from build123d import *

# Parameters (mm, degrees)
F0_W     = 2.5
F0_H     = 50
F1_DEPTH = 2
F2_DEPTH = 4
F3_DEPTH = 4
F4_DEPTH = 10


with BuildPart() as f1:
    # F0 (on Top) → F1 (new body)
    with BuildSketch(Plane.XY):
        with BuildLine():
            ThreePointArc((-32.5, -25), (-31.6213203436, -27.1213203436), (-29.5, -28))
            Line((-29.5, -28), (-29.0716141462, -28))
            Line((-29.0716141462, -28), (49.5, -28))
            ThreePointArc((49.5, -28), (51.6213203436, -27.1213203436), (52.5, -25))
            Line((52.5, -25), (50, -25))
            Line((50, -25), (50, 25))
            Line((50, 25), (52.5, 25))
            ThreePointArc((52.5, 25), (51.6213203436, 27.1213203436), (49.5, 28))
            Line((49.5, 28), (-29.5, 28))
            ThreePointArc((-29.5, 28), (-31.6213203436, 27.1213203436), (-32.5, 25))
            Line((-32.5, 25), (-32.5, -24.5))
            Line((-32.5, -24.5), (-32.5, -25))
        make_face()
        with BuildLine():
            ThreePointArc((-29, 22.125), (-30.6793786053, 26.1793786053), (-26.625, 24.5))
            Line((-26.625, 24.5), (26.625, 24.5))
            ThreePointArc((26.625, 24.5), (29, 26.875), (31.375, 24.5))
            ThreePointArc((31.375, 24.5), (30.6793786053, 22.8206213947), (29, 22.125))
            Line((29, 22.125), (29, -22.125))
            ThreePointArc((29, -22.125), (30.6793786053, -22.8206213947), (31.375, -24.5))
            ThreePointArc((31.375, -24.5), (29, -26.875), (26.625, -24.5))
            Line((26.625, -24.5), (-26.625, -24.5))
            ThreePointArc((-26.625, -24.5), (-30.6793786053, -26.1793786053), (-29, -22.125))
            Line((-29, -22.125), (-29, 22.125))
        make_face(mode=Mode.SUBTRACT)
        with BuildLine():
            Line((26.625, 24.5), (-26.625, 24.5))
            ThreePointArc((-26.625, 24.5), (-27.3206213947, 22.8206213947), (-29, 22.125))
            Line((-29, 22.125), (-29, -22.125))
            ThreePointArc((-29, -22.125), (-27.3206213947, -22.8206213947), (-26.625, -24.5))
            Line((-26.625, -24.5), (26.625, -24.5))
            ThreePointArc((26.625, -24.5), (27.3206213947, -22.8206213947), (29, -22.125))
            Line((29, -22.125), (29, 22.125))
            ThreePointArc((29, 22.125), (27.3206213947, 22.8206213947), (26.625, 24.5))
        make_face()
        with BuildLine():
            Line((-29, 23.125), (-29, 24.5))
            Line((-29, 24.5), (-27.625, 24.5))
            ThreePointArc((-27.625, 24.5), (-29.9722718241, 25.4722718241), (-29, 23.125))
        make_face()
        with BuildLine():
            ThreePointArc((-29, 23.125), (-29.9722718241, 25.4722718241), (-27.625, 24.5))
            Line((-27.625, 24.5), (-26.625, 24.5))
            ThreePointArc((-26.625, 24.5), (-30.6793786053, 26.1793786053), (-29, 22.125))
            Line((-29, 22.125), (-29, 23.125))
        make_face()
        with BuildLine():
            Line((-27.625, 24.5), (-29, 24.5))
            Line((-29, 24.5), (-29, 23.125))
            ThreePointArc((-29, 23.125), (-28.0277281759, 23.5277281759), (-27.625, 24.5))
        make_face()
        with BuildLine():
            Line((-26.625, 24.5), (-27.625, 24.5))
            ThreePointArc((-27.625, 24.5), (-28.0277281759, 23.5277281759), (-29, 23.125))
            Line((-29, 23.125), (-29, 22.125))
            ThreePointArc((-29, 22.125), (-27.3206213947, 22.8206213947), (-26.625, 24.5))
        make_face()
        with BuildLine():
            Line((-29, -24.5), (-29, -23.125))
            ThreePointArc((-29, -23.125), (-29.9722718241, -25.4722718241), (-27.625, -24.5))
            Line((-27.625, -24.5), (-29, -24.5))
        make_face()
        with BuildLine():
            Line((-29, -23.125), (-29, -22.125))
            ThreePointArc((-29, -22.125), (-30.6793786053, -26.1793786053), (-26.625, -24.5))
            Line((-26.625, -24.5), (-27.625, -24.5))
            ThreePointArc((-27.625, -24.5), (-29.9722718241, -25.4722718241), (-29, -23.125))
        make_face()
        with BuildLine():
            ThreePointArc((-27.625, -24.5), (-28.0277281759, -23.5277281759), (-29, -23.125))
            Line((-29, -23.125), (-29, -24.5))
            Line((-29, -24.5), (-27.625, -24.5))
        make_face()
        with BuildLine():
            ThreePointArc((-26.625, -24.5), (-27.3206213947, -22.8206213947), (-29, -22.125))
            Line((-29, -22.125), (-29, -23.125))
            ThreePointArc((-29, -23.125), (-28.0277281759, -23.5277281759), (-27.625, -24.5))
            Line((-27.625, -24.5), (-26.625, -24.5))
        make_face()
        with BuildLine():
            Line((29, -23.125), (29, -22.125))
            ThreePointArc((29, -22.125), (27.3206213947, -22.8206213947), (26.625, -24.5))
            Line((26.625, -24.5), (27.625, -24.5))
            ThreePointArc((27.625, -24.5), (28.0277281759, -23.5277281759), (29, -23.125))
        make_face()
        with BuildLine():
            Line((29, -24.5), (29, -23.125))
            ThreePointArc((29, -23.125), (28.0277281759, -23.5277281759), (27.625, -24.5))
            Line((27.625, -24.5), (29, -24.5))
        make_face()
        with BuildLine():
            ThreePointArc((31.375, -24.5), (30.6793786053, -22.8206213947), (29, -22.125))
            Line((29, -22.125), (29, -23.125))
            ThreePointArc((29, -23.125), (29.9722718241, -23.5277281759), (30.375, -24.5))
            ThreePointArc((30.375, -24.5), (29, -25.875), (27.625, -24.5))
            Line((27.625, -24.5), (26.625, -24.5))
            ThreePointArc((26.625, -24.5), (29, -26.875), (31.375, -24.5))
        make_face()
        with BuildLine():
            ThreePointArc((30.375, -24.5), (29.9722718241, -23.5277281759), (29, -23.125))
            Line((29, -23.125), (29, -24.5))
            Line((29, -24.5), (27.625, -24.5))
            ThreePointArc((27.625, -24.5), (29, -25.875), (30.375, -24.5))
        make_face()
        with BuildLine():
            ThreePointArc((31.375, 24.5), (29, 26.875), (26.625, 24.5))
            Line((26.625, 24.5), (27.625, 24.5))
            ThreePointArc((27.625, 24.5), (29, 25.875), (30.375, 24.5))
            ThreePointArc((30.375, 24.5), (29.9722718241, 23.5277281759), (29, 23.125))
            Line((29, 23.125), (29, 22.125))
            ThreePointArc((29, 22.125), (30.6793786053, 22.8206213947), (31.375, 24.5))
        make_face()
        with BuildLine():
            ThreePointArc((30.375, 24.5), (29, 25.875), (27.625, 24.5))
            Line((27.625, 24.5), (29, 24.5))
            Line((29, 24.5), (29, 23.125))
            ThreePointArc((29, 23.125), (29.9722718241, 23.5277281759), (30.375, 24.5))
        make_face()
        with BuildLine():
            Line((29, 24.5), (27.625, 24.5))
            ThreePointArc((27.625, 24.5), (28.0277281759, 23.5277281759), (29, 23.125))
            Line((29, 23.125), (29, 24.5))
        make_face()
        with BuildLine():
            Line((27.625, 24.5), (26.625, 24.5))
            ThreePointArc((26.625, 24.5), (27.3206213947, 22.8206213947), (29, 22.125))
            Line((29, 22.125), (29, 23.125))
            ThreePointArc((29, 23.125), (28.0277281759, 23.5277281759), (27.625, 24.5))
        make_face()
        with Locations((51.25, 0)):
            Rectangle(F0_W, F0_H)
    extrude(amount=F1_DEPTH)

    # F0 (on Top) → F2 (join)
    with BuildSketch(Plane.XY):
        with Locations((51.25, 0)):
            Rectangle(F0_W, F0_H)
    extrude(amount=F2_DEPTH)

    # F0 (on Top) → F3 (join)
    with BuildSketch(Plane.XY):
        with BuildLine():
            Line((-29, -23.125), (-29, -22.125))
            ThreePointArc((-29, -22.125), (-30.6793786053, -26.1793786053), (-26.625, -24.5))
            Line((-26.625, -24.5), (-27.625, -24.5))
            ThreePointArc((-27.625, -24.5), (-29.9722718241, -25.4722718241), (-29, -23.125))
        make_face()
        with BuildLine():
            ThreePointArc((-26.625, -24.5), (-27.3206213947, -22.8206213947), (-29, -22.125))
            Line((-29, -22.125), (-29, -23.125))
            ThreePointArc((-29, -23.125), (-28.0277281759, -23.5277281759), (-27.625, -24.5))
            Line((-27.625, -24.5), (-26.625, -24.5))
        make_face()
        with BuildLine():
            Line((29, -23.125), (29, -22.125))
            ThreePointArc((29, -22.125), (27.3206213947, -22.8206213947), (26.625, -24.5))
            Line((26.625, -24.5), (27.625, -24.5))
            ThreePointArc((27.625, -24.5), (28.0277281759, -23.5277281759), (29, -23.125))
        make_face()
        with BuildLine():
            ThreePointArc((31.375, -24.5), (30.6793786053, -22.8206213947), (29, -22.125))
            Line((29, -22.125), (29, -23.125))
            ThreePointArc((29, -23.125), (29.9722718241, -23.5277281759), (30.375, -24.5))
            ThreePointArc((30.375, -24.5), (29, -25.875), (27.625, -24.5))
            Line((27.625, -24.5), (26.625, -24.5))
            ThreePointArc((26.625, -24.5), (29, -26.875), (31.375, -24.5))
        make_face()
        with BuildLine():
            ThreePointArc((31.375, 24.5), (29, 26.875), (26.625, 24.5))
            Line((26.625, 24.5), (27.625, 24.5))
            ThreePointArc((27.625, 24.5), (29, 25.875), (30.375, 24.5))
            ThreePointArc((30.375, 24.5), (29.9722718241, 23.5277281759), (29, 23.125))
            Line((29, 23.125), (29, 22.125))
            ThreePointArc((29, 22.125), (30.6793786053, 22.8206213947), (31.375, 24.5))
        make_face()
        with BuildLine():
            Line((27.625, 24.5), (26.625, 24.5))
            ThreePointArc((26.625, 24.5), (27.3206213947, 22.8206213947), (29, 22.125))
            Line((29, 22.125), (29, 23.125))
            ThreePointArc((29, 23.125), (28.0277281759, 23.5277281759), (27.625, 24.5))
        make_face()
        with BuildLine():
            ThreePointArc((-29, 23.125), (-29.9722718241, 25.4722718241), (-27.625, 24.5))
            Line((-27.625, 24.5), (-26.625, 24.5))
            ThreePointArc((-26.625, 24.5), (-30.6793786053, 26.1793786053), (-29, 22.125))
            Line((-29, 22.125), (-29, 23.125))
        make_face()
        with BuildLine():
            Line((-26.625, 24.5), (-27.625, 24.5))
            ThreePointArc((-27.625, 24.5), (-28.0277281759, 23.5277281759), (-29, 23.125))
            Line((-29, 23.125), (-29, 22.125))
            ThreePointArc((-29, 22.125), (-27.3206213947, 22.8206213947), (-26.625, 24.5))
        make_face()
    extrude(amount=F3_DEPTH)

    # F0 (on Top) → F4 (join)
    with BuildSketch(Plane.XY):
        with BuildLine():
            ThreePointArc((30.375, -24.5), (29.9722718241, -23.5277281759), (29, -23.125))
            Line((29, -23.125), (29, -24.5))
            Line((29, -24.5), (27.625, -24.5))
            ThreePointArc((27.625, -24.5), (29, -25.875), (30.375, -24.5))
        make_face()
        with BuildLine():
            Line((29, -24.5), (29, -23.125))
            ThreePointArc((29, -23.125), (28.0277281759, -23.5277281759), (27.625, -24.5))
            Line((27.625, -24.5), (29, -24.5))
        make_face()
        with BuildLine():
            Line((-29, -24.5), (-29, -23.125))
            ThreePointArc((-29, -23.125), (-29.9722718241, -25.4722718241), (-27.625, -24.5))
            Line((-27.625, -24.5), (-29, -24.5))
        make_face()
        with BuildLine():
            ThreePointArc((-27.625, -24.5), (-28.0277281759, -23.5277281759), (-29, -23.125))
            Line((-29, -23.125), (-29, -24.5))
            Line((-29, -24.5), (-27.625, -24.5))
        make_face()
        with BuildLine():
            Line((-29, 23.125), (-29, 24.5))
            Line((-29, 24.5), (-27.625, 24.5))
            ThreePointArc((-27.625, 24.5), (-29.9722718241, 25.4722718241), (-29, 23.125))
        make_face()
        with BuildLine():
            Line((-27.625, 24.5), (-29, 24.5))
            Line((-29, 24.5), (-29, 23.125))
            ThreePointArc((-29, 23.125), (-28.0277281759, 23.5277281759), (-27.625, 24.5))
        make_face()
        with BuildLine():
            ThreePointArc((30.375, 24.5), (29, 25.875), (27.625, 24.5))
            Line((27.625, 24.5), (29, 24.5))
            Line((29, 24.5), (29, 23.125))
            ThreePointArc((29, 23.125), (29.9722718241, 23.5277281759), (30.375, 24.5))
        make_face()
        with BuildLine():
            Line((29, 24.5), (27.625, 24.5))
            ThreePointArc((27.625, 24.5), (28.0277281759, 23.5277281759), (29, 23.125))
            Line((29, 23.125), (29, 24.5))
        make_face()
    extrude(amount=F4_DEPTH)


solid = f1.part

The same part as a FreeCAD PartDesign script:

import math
import FreeCAD as App
import Part
import Sketcher


def add_polygon(sketch, points):
    """Adds a closed chain of lines whose ends are joined by coincident constraints."""
    first, n = sketch.GeometryCount, len(points)
    for a, b in zip(points, points[1:] + points[:1]):
        sketch.addGeometry(Part.LineSegment(App.Vector(*a, 0), App.Vector(*b, 0)), False)
    for i in range(n):
        sketch.addConstraint(Sketcher.Constraint("Coincident", first + i, 2, first + (i + 1) % n, 1))

doc = App.newDocument("Part")
body = doc.addObject("PartDesign::Body", "Body")

sketch1 = body.newObject("Sketcher::SketchObject", "Sketch")
sketch1.AttachmentSupport = (doc.getObject("XY_Plane"), [""])
sketch1.MapMode = "FlatFace"
sketch1.addGeometry(Part.ArcOfCircle(Part.Circle(App.Vector(-29.5, -25, 0), App.Vector(0, 0, 1), 3), math.radians(180), math.radians(270)), False)
sketch1.addGeometry(Part.LineSegment(App.Vector(-29.5, -28, 0), App.Vector(49.5, -28, 0)), False)
sketch1.addGeometry(Part.ArcOfCircle(Part.Circle(App.Vector(49.5, -25, 0), App.Vector(0, 0, 1), 3), math.radians(-90), math.radians(0)), False)
sketch1.addGeometry(Part.LineSegment(App.Vector(52.5, -25, 0), App.Vector(52.5, 25, 0)), False)
sketch1.addGeometry(Part.ArcOfCircle(Part.Circle(App.Vector(49.5, 25, 0), App.Vector(0, 0, 1), 3), math.radians(0), math.radians(90)), False)
sketch1.addGeometry(Part.LineSegment(App.Vector(49.5, 28, 0), App.Vector(-29.5, 28, 0)), False)
sketch1.addGeometry(Part.ArcOfCircle(Part.Circle(App.Vector(-29.5, 25, 0), App.Vector(0, 0, 1), 3), math.radians(90), math.radians(180)), False)
sketch1.addGeometry(Part.LineSegment(App.Vector(-32.5, 25, 0), App.Vector(-32.5, -25, 0)), False)
sketch1.addConstraint(Sketcher.Constraint("Tangent", 0, 2, 1, 1))
sketch1.addConstraint(Sketcher.Constraint("Tangent", 1, 2, 2, 1))
sketch1.addConstraint(Sketcher.Constraint("Tangent", 2, 2, 3, 1))
sketch1.addConstraint(Sketcher.Constraint("Tangent", 3, 2, 4, 1))
sketch1.addConstraint(Sketcher.Constraint("Tangent", 4, 2, 5, 1))
sketch1.addConstraint(Sketcher.Constraint("Tangent", 5, 2, 6, 1))
sketch1.addConstraint(Sketcher.Constraint("Tangent", 6, 2, 7, 1))
sketch1.addConstraint(Sketcher.Constraint("Tangent", 7, 2, 0, 1))
sketch1.addConstraint(Sketcher.Constraint("Horizontal", 1))
sketch1.addConstraint(Sketcher.Constraint("Vertical", 3))
sketch1.addConstraint(Sketcher.Constraint("Horizontal", 5))
sketch1.addConstraint(Sketcher.Constraint("Vertical", 7))
sketch1.addConstraint(Sketcher.Constraint("Equal", 0, 2))
sketch1.addConstraint(Sketcher.Constraint("Equal", 2, 4))
sketch1.addConstraint(Sketcher.Constraint("Equal", 4, 6))
sketch1.addConstraint(Sketcher.Constraint("Radius", 0, 3.0))
sketch1.addConstraint(Sketcher.Constraint("DistanceX", 1, 1, 1, 2, 79.0))
sketch1.addConstraint(Sketcher.Constraint("DistanceY", 3, 1, 3, 2, 50.0))
sketch1.addConstraint(Sketcher.Constraint("DistanceY", 0, 3, -1, 1, 25.0))
sketch1.addConstraint(Sketcher.Constraint("DistanceX", 0, 3, -1, 1, 29.5))
pad1 = body.newObject("PartDesign::Pad", "Pad")
pad1.Profile = sketch1
pad1.Length = 2

sketch2 = body.newObject("Sketcher::SketchObject", "Sketch001")
sketch2.AttachmentSupport = (doc.getObject("XY_Plane"), [""])
sketch2.MapMode = "FlatFace"
add_polygon(sketch2, [(50, 25), (50, -25), (52.5, -25), (52.5, 25)])
sketch2.addConstraint(Sketcher.Constraint("Vertical", 0))
sketch2.addConstraint(Sketcher.Constraint("Horizontal", 1))
sketch2.addConstraint(Sketcher.Constraint("Vertical", 2))
sketch2.addConstraint(Sketcher.Constraint("Horizontal", 3))
sketch2.addConstraint(Sketcher.Constraint("DistanceY", 0, 2, 0, 1, 50.0))
sketch2.addConstraint(Sketcher.Constraint("DistanceX", 1, 1, 1, 2, 2.5))
sketch2.addConstraint(Sketcher.Constraint("DistanceX", -1, 1, 0, 2, 50.0))
sketch2.addConstraint(Sketcher.Constraint("DistanceY", 0, 2, -1, 1, 25.0))
pad2 = body.newObject("PartDesign::Pad", "Pad001")
pad2.Profile = sketch2
pad2.Length = 4

sketch3 = body.newObject("Sketcher::SketchObject", "Sketch002")
sketch3.AttachmentSupport = (doc.getObject("XY_Plane"), [""])
sketch3.MapMode = "FlatFace"
sketch3.addGeometry(Part.ArcOfCircle(Part.Circle(App.Vector(-29, -24.5, 0), App.Vector(0, 0, 1), 2.375), math.radians(90), math.radians(360)), False)
sketch3.addGeometry(Part.ArcOfCircle(Part.Circle(App.Vector(-29, -24.5, 0), App.Vector(0, 0, 1), 2.375), math.radians(0), math.radians(90)), False)
sketch3.addGeometry(Part.ArcOfCircle(Part.Circle(App.Vector(-29, -24.5, 0), App.Vector(0, 0, 1), 1.375), math.radians(90), math.radians(360)), False)
sketch3.addGeometry(Part.ArcOfCircle(Part.Circle(App.Vector(-29, -24.5, 0), App.Vector(0, 0, 1), 1.375), math.radians(0), math.radians(90)), False)
sketch3.addGeometry(Part.ArcOfCircle(Part.Circle(App.Vector(29, -24.5, 0), App.Vector(0, 0, 1), 2.375), math.radians(90), math.radians(180)), False)
sketch3.addGeometry(Part.ArcOfCircle(Part.Circle(App.Vector(29, -24.5, 0), App.Vector(0, 0, 1), 2.375), math.radians(180), math.radians(360)), False)
sketch3.addGeometry(Part.ArcOfCircle(Part.Circle(App.Vector(29, -24.5, 0), App.Vector(0, 0, 1), 2.375), math.radians(0), math.radians(90)), False)
sketch3.addGeometry(Part.ArcOfCircle(Part.Circle(App.Vector(29, -24.5, 0), App.Vector(0, 0, 1), 1.375), math.radians(90), math.radians(180)), False)
sketch3.addGeometry(Part.ArcOfCircle(Part.Circle(App.Vector(29, -24.5, 0), App.Vector(0, 0, 1), 1.375), math.radians(0), math.radians(90)), False)
sketch3.addGeometry(Part.ArcOfCircle(Part.Circle(App.Vector(29, -24.5, 0), App.Vector(0, 0, 1), 1.375), math.radians(180), math.radians(360)), False)
sketch3.addGeometry(Part.ArcOfCircle(Part.Circle(App.Vector(29, 24.5, 0), App.Vector(0, 0, 1), 2.375), math.radians(0), math.radians(180)), False)
sketch3.addGeometry(Part.ArcOfCircle(Part.Circle(App.Vector(29, 24.5, 0), App.Vector(0, 0, 1), 2.375), math.radians(180), math.radians(270)), False)
sketch3.addGeometry(Part.ArcOfCircle(Part.Circle(App.Vector(29, 24.5, 0), App.Vector(0, 0, 1), 2.375), math.radians(-90), math.radians(0)), False)
sketch3.addGeometry(Part.ArcOfCircle(Part.Circle(App.Vector(29, 24.5, 0), App.Vector(0, 0, 1), 1.375), math.radians(0), math.radians(180)), False)
sketch3.addGeometry(Part.ArcOfCircle(Part.Circle(App.Vector(29, 24.5, 0), App.Vector(0, 0, 1), 1.375), math.radians(-90), math.radians(0)), False)
sketch3.addGeometry(Part.ArcOfCircle(Part.Circle(App.Vector(29, 24.5, 0), App.Vector(0, 0, 1), 1.375), math.radians(180), math.radians(270)), False)
sketch3.addGeometry(Part.ArcOfCircle(Part.Circle(App.Vector(-29, 24.5, 0), App.Vector(0, 0, 1), 2.375), math.radians(0), math.radians(270)), False)
sketch3.addGeometry(Part.ArcOfCircle(Part.Circle(App.Vector(-29, 24.5, 0), App.Vector(0, 0, 1), 2.375), math.radians(-90), math.radians(0)), False)
sketch3.addGeometry(Part.ArcOfCircle(Part.Circle(App.Vector(-29, 24.5, 0), App.Vector(0, 0, 1), 1.375), math.radians(0), math.radians(270)), False)
sketch3.addGeometry(Part.ArcOfCircle(Part.Circle(App.Vector(-29, 24.5, 0), App.Vector(0, 0, 1), 1.375), math.radians(-90), math.radians(0)), False)
sketch3.addConstraint(Sketcher.Constraint("Tangent", 0, 1, 1, 2))
sketch3.addConstraint(Sketcher.Constraint("Coincident", 1, 1, 0, 2))
sketch3.addConstraint(Sketcher.Constraint("Tangent", 2, 1, 3, 2))
sketch3.addConstraint(Sketcher.Constraint("Coincident", 3, 1, 2, 2))
sketch3.addConstraint(Sketcher.Constraint("Tangent", 4, 2, 5, 1))
sketch3.addConstraint(Sketcher.Constraint("Tangent", 5, 2, 6, 1))
sketch3.addConstraint(Sketcher.Constraint("Tangent", 6, 2, 4, 1))
sketch3.addConstraint(Sketcher.Constraint("Tangent", 7, 1, 8, 2))
sketch3.addConstraint(Sketcher.Constraint("Tangent", 8, 1, 9, 2))
sketch3.addConstraint(Sketcher.Constraint("Tangent", 9, 1, 7, 2))
sketch3.addConstraint(Sketcher.Constraint("Tangent", 10, 2, 11, 1))
sketch3.addConstraint(Sketcher.Constraint("Tangent", 11, 2, 12, 1))
sketch3.addConstraint(Sketcher.Constraint("Tangent", 12, 2, 10, 1))
sketch3.addConstraint(Sketcher.Constraint("Tangent", 13, 1, 14, 2))
sketch3.addConstraint(Sketcher.Constraint("Tangent", 14, 1, 15, 2))
sketch3.addConstraint(Sketcher.Constraint("Tangent", 15, 1, 13, 2))
sketch3.addConstraint(Sketcher.Constraint("Tangent", 16, 1, 17, 2))
sketch3.addConstraint(Sketcher.Constraint("Coincident", 17, 1, 16, 2))
sketch3.addConstraint(Sketcher.Constraint("Tangent", 18, 1, 19, 2))
sketch3.addConstraint(Sketcher.Constraint("Coincident", 19, 1, 18, 2))
sketch3.addConstraint(Sketcher.Constraint("Coincident", 2, 3, 0, 3))
sketch3.addConstraint(Sketcher.Constraint("Coincident", 7, 3, 4, 3))
sketch3.addConstraint(Sketcher.Constraint("Coincident", 13, 3, 10, 3))
sketch3.addConstraint(Sketcher.Constraint("Coincident", 18, 3, 16, 3))
sketch3.addConstraint(Sketcher.Constraint("Equal", 1, 4))
sketch3.addConstraint(Sketcher.Constraint("Equal", 3, 7))
sketch3.addConstraint(Sketcher.Constraint("Equal", 6, 10))
sketch3.addConstraint(Sketcher.Constraint("Equal", 9, 13))
sketch3.addConstraint(Sketcher.Constraint("Equal", 12, 16))
sketch3.addConstraint(Sketcher.Constraint("Equal", 15, 18))
sketch3.addConstraint(Sketcher.Constraint("Symmetric", 0, 3, 10, 3, -1, 1))
sketch3.addConstraint(Sketcher.Constraint("Symmetric", 4, 3, 16, 3, -1, 1))
sketch3.addConstraint(Sketcher.Constraint("Symmetric", 0, 3, 4, 3, -2))
sketch3.addConstraint(Sketcher.Constraint("Horizontal", 9, 3, 1, 1))
sketch3.addConstraint(Sketcher.Constraint("Horizontal", 1, 1, 3, 1))
sketch3.addConstraint(Sketcher.Constraint("Horizontal", 3, 1, 4, 2))
sketch3.addConstraint(Sketcher.Constraint("Horizontal", 4, 2, 5, 2))
sketch3.addConstraint(Sketcher.Constraint("Horizontal", 5, 2, 8, 1))
sketch3.addConstraint(Sketcher.Constraint("Horizontal", 8, 1, 9, 1))
sketch3.addConstraint(Sketcher.Constraint("Horizontal", 19, 3, 10, 2))
sketch3.addConstraint(Sketcher.Constraint("Horizontal", 10, 2, 12, 2))
sketch3.addConstraint(Sketcher.Constraint("Horizontal", 12, 2, 13, 1))
sketch3.addConstraint(Sketcher.Constraint("Horizontal", 13, 1, 15, 1))
sketch3.addConstraint(Sketcher.Constraint("Horizontal", 15, 1, 16, 1))
sketch3.addConstraint(Sketcher.Constraint("Horizontal", 16, 1, 18, 1))
sketch3.addConstraint(Sketcher.Constraint("Vertical", 19, 3, 0, 1))
sketch3.addConstraint(Sketcher.Constraint("Vertical", 0, 1, 2, 1))
sketch3.addConstraint(Sketcher.Constraint("Vertical", 15, 3, 6, 2))
sketch3.addConstraint(Sketcher.Constraint("Vertical", 6, 2, 7, 1))
sketch3.addConstraint(Sketcher.Constraint("Vertical", 7, 1, 11, 2))
sketch3.addConstraint(Sketcher.Constraint("Vertical", 11, 2, 14, 1))
sketch3.addConstraint(Sketcher.Constraint("Vertical", 2, 1, 17, 1))
sketch3.addConstraint(Sketcher.Constraint("Vertical", 17, 1, 19, 1))
sketch3.addConstraint(Sketcher.Constraint("DistanceX", 0, 3, -1, 1, 29.0))
sketch3.addConstraint(Sketcher.Constraint("Radius", 0, 2.375))
sketch3.addConstraint(Sketcher.Constraint("Radius", 2, 1.375))
sketch3.addConstraint(Sketcher.Constraint("DistanceY", 4, 3, 10, 3, 49.0))
pad3 = body.newObject("PartDesign::Pad", "Pad002")
pad3.Profile = sketch3
pad3.Length = 4

sketch4 = body.newObject("Sketcher::SketchObject", "Sketch003")
sketch4.AttachmentSupport = (doc.getObject("XY_Plane"), [""])
sketch4.MapMode = "FlatFace"
sketch4.addGeometry(Part.ArcOfCircle(Part.Circle(App.Vector(29, -24.5, 0), App.Vector(0, 0, 1), 1.375), math.radians(0), math.radians(90)), False)
sketch4.addGeometry(Part.ArcOfCircle(Part.Circle(App.Vector(29, -24.5, 0), App.Vector(0, 0, 1), 1.375), math.radians(90), math.radians(180)), False)
sketch4.addGeometry(Part.ArcOfCircle(Part.Circle(App.Vector(29, -24.5, 0), App.Vector(0, 0, 1), 1.375), math.radians(180), math.radians(360)), False)
sketch4.addGeometry(Part.ArcOfCircle(Part.Circle(App.Vector(-29, -24.5, 0), App.Vector(0, 0, 1), 1.375), math.radians(90), math.radians(360)), False)
sketch4.addGeometry(Part.ArcOfCircle(Part.Circle(App.Vector(-29, -24.5, 0), App.Vector(0, 0, 1), 1.375), math.radians(0), math.radians(90)), False)
sketch4.addGeometry(Part.ArcOfCircle(Part.Circle(App.Vector(-29, 24.5, 0), App.Vector(0, 0, 1), 1.375), math.radians(0), math.radians(270)), False)
sketch4.addGeometry(Part.ArcOfCircle(Part.Circle(App.Vector(-29, 24.5, 0), App.Vector(0, 0, 1), 1.375), math.radians(-90), math.radians(0)), False)
sketch4.addGeometry(Part.ArcOfCircle(Part.Circle(App.Vector(29, 24.5, 0), App.Vector(0, 0, 1), 1.375), math.radians(0), math.radians(180)), False)
sketch4.addGeometry(Part.ArcOfCircle(Part.Circle(App.Vector(29, 24.5, 0), App.Vector(0, 0, 1), 1.375), math.radians(180), math.radians(270)), False)
sketch4.addGeometry(Part.ArcOfCircle(Part.Circle(App.Vector(29, 24.5, 0), App.Vector(0, 0, 1), 1.375), math.radians(-90), math.radians(0)), False)
sketch4.addConstraint(Sketcher.Constraint("Tangent", 0, 2, 1, 1))
sketch4.addConstraint(Sketcher.Constraint("Tangent", 1, 2, 2, 1))
sketch4.addConstraint(Sketcher.Constraint("Tangent", 2, 2, 0, 1))
sketch4.addConstraint(Sketcher.Constraint("Tangent", 3, 1, 4, 2))
sketch4.addConstraint(Sketcher.Constraint("Coincident", 4, 1, 3, 2))
sketch4.addConstraint(Sketcher.Constraint("Tangent", 5, 1, 6, 2))
sketch4.addConstraint(Sketcher.Constraint("Coincident", 6, 1, 5, 2))
sketch4.addConstraint(Sketcher.Constraint("Tangent", 7, 2, 8, 1))
sketch4.addConstraint(Sketcher.Constraint("Tangent", 8, 2, 9, 1))
sketch4.addConstraint(Sketcher.Constraint("Tangent", 9, 2, 7, 1))
sketch4.addConstraint(Sketcher.Constraint("Equal", 2, 3))
sketch4.addConstraint(Sketcher.Constraint("Equal", 4, 5))
sketch4.addConstraint(Sketcher.Constraint("Equal", 6, 7))
sketch4.addConstraint(Sketcher.Constraint("Symmetric", 0, 3, 5, 3, -1, 1))
sketch4.addConstraint(Sketcher.Constraint("Symmetric", 3, 3, 7, 3, -1, 1))
sketch4.addConstraint(Sketcher.Constraint("Symmetric", 0, 3, 3, 3, -2))
sketch4.addConstraint(Sketcher.Constraint("Horizontal", 4, 3, 1, 2))
sketch4.addConstraint(Sketcher.Constraint("Horizontal", 1, 2, 2, 2))
sketch4.addConstraint(Sketcher.Constraint("Horizontal", 2, 2, 4, 1))
sketch4.addConstraint(Sketcher.Constraint("Horizontal", 9, 3, 5, 1))
sketch4.addConstraint(Sketcher.Constraint("Horizontal", 5, 1, 7, 2))
sketch4.addConstraint(Sketcher.Constraint("Horizontal", 7, 2, 9, 2))
sketch4.addConstraint(Sketcher.Constraint("Vertical", 9, 3, 0, 2))
sketch4.addConstraint(Sketcher.Constraint("Vertical", 6, 3, 3, 1))
sketch4.addConstraint(Sketcher.Constraint("Vertical", 3, 1, 6, 1))
sketch4.addConstraint(Sketcher.Constraint("Vertical", 0, 2, 8, 2))
sketch4.addConstraint(Sketcher.Constraint("DistanceX", -1, 1, 0, 3, 29.0))
sketch4.addConstraint(Sketcher.Constraint("Radius", 0, 1.375))
sketch4.addConstraint(Sketcher.Constraint("DistanceY", 3, 3, 5, 3, 49.0))
pad4 = body.newObject("PartDesign::Pad", "Pad003")
pad4.Profile = sketch4
pad4.Length = 10

doc.recompute()
